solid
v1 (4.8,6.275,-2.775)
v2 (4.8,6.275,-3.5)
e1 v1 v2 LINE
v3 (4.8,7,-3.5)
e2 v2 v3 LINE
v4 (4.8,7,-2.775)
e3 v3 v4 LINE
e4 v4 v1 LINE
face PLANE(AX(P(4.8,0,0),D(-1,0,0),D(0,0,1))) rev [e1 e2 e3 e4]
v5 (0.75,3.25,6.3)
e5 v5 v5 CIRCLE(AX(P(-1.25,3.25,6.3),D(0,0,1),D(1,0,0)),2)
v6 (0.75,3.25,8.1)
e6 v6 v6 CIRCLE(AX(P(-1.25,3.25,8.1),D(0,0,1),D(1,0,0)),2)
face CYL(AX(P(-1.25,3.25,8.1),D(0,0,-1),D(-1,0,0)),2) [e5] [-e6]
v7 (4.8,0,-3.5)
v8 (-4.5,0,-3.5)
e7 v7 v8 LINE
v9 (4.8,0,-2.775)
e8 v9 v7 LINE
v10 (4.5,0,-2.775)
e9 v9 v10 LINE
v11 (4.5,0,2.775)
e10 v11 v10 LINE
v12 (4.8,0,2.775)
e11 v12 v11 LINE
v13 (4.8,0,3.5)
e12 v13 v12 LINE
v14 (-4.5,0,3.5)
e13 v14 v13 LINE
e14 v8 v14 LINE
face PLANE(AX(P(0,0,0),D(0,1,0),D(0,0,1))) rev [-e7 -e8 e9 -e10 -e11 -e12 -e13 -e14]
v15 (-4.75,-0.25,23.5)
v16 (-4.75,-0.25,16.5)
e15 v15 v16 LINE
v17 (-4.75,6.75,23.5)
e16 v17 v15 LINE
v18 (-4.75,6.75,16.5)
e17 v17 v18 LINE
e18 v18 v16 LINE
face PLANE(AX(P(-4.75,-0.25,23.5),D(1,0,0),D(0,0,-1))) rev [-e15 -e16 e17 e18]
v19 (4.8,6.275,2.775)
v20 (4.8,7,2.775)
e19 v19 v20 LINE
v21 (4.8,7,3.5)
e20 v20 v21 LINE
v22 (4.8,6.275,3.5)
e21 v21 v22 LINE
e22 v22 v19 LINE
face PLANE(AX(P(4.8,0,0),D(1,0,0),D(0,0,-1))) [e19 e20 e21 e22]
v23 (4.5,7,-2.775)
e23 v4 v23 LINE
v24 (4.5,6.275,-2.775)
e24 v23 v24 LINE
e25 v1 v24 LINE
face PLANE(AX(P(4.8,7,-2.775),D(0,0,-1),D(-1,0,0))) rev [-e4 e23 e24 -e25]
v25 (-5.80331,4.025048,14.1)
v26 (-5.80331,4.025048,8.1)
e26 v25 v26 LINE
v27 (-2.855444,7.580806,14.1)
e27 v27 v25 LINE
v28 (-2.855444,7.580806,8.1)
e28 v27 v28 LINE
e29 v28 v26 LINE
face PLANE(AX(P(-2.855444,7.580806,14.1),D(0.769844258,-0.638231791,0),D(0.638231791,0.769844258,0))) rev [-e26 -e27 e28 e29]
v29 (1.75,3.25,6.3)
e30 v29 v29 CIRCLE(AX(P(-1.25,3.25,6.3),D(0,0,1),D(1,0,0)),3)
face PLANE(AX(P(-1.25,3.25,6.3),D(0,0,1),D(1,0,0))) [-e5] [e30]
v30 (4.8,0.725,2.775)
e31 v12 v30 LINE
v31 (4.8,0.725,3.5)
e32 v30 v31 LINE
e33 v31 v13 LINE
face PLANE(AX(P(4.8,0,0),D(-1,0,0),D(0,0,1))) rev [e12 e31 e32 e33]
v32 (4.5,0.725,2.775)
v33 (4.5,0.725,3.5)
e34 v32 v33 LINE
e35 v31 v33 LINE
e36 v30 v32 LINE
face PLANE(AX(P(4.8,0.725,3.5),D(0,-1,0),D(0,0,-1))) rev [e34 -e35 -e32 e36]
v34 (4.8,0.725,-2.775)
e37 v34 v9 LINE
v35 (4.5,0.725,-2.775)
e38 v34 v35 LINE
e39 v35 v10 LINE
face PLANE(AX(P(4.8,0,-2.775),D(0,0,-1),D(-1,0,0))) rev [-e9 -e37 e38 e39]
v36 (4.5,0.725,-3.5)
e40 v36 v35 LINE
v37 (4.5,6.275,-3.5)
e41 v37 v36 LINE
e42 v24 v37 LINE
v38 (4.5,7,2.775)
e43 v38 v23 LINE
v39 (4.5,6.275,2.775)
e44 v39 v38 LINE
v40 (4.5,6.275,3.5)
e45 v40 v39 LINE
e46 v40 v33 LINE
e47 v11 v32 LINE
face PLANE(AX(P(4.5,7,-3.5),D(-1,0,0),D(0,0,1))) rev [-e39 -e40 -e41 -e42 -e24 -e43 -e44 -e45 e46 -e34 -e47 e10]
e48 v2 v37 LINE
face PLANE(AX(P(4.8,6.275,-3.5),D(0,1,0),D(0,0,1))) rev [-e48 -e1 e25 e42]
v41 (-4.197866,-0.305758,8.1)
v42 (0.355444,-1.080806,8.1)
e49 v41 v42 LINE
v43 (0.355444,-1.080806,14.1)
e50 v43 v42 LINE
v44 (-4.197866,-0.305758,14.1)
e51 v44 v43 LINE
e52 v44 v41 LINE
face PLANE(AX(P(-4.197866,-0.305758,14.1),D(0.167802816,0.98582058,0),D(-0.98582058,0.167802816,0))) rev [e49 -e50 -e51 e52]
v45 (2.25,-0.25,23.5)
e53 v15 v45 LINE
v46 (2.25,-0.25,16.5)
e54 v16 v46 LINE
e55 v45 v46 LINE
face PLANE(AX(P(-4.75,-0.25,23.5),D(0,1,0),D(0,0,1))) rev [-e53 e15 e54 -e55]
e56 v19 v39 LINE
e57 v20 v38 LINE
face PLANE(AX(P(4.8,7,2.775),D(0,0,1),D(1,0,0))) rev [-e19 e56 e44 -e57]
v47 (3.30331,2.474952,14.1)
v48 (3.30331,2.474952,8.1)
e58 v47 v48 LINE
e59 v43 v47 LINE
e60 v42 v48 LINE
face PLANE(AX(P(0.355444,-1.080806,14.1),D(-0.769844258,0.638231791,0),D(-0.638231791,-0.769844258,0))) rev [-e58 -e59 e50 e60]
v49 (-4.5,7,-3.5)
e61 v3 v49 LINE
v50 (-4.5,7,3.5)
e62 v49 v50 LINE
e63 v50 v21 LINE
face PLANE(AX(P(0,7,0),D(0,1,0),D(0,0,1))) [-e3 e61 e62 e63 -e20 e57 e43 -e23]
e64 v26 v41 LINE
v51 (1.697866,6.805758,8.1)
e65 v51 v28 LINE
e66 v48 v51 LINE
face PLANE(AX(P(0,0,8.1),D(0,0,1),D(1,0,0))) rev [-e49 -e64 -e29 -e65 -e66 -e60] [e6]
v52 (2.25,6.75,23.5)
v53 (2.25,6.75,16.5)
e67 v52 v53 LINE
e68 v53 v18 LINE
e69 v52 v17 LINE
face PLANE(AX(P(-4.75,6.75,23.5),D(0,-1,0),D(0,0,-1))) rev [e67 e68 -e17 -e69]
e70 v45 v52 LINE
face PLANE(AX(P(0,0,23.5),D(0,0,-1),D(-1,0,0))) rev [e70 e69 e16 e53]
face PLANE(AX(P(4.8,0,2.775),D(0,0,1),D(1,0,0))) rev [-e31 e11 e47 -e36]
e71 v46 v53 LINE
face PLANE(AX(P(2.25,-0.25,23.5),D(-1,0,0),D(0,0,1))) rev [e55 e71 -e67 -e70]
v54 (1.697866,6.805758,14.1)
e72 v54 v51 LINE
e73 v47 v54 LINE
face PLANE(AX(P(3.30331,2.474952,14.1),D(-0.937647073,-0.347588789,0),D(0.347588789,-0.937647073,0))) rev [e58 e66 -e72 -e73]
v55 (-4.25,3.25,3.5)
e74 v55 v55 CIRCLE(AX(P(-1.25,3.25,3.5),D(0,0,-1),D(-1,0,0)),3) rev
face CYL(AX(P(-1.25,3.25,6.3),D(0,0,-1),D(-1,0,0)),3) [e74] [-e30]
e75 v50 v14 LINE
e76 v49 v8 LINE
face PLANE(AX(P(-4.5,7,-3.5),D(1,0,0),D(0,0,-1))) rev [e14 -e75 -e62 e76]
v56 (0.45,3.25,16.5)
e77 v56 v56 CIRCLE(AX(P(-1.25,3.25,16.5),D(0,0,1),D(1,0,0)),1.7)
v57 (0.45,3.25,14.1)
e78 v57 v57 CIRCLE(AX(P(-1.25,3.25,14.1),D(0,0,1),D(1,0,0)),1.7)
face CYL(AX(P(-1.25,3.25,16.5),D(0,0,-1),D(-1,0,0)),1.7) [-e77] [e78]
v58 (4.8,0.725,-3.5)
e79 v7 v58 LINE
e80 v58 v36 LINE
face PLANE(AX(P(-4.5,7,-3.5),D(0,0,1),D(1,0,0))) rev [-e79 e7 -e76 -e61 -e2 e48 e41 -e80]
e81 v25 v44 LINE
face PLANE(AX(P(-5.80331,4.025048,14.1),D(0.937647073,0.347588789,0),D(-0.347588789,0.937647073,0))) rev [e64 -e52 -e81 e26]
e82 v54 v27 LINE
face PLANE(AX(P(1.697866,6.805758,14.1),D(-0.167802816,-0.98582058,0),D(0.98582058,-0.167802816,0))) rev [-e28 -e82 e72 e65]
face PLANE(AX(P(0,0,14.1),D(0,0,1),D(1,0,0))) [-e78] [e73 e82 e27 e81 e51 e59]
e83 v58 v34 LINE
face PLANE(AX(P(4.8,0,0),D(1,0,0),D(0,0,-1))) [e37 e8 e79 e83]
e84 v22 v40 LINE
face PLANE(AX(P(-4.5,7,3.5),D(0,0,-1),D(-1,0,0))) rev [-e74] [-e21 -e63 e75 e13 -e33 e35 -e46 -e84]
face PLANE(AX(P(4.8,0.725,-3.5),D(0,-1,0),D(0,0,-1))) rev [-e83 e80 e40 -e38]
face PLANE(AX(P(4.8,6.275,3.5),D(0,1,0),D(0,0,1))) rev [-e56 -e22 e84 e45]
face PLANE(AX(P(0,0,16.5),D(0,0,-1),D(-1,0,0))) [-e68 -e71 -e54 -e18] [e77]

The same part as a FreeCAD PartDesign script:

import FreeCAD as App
import Part
import Sketcher
from FreeCAD import Vector

doc = App.newDocument("Part")
params = doc.addObject("Spreadsheet::Sheet", "Params")
for row, (alias, value) in enumerate([
    ("sketch1_width", "9 mm"),
    ("sketch1_height", "7 mm"),
    ("pad1_length", "7 mm"),
    ("pad2_length", "0.3 mm"),
    ("sketch3_diameter", "6 mm"),
    ("pad3_length", "2.8 mm"),
    ("sketch4_diameter", "4 mm"),
    ("pad4_length", "1.8 mm"),
    ("pad5_length", "6 mm"),
    ("sketch6_diameter", "3.4 mm"),
    ("pad6_length", "2.4 mm"),
    ("sketch7_width", "7 mm"),
    ("pad7_length", "7 mm"),
], start=1):
    params.set(f"A{row}", alias)
    params.set(f"B{row}", "=" + value)
    params.setAlias(f"B{row}", alias)

body = doc.addObject("PartDesign::Body", "Body")

# Sketch on XZ plane
sketch1 = body.newObject("Sketcher::SketchObject", "Sketch")
sketch1.AttachmentSupport = (doc.getObject("XZ_Plane"), [""])
sketch1.MapMode = "FlatFace"
sketch1.addGeometry(Part.LineSegment(Vector(-4.5, -3.5, 0), Vector(-4.5, 3.5, 0)), False)
sketch1.addGeometry(Part.LineSegment(Vector(-4.5, 3.5, 0), Vector(4.5, 3.5, 0)), False)
sketch1.addGeometry(Part.LineSegment(Vector(4.5, 3.5, 0), Vector(4.5, -3.5, 0)), False)
sketch1.addGeometry(Part.LineSegment(Vector(4.5, -3.5, 0), Vector(-4.5, -3.5, 0)), False)
sketch1.addConstraint(Sketcher.Constraint("Coincident", 0, 2, 1, 1))
sketch1.addConstraint(Sketcher.Constraint("Coincident", 1, 2, 2, 1))
sketch1.addConstraint(Sketcher.Constraint("Coincident", 2, 2, 3, 1))
sketch1.addConstraint(Sketcher.Constraint("Coincident", 3, 2, 0, 1))
sketch1.addConstraint(Sketcher.Constraint("Vertical", 0))
sketch1.addConstraint(Sketcher.Constraint("Horizontal", 1))
sketch1.addConstraint(Sketcher.Constraint("Vertical", 2))
sketch1.addConstraint(Sketcher.Constraint("Horizontal", 3))
sketch1.addConstraint(Sketcher.Constraint("Symmetric", 0, 2, 2, 2, -1, 1))
sketch1.addConstraint(Sketcher.Constraint("DistanceX", 1, 1, 1, 2, 9.0))
sketch1.addConstraint(Sketcher.Constraint("DistanceY", 0, 1, 0, 2, 7.0))
sketch1.setExpression("Constraints[9]", "Params.sketch1_width")
sketch1.setExpression("Constraints[10]", "Params.sketch1_height")
pad1 = body.newObject("PartDesign::Pad", "Pad")
pad1.Profile = sketch1
pad1.setExpression("Length", "Params.pad1_length")
pad1.Reversed = True

# Sketch on YZ plane
sketch2 = body.newObject("Sketcher::SketchObject", "Sketch001")
sketch2.AttachmentSupport = (doc.getObject("YZ_Plane"), [""])
sketch2.MapMode = "FlatFace"
sketch2.AttachmentOffset = App.Placement(Vector(0, 0, 4.5), App.Rotation())
sketch2.addGeometry(Part.LineSegment(Vector(7, 3.5, 0), Vector(6.275, 3.5, 0)), False)
sketch2.addGeometry(Part.LineSegment(Vector(6.275, 3.5, 0), Vector(6.275, 2.775, 0)), False)
sketch2.addGeometry(Part.LineSegment(Vector(6.275, 2.775, 0), Vector(7, 2.775, 0)), False)
sketch2.addGeometry(Part.LineSegment(Vector(7, 2.775, 0), Vector(7, 3.5, 0)), False)
sketch2.addGeometry(Part.LineSegment(Vector(7, -2.775, 0), Vector(6.275, -2.775, 0)), False)
sketch2.addGeometry(Part.LineSegment(Vector(6.275, -2.775, 0), Vector(6.275, -3.5, 0)), False)
sketch2.addGeometry(Part.LineSegment(Vector(6.275, -3.5, 0), Vector(7, -3.5, 0)), False)
sketch2.addGeometry(Part.LineSegment(Vector(7, -3.5, 0), Vector(7, -2.775, 0)), False)
sketch2.addGeometry(Part.LineSegment(Vector(0.725, 3.5, 0), Vector(0, 3.5, 0)), False)
sketch2.addGeometry(Part.LineSegment(Vector(0, 3.5, 0), Vector(0, 2.775, 0)), False)
sketch2.addGeometry(Part.LineSegment(Vector(0, 2.775, 0), Vector(0.725, 2.775, 0)), False)
sketch2.addGeometry(Part.LineSegment(Vector(0.725, 2.775, 0), Vector(0.725, 3.5, 0)), False)
sketch2.addGeometry(Part.LineSegment(Vector(0.725, -2.775, 0), Vector(0, -2.775, 0)), False)
sketch2.addGeometry(Part.LineSegment(Vector(0, -2.775, 0), Vector(0, -3.5, 0)), False)
sketch2.addGeometry(Part.LineSegment(Vector(0, -3.5, 0), Vector(0.725, -3.5, 0)), False)
sketch2.addGeometry(Part.LineSegment(Vector(0.725, -3.5, 0), Vector(0.725, -2.775, 0)), False)
sketch2.addConstraint(Sketcher.Constraint("Coincident", 0, 2, 1, 1))
sketch2.addConstraint(Sketcher.Constraint("Coincident", 1, 2, 2, 1))
sketch2.addConstraint(Sketcher.Constraint("Coincident", 2, 2, 3, 1))
sketch2.addConstraint(Sketcher.Constraint("Coincident", 3, 2, 0, 1))
sketch2.addConstraint(Sketcher.Constraint("Coincident", 4, 2, 5, 1))
sketch2.addConstraint(Sketcher.Constraint("Coincident", 5, 2, 6, 1))
sketch2.addConstraint(Sketcher.Constraint("Coincident", 6, 2, 7, 1))
sketch2.addConstraint(Sketcher.Constraint("Coincident", 7, 2, 4, 1))
sketch2.addConstraint(Sketcher.Constraint("Coincident", 8, 2, 9, 1))
sketch2.addConstraint(Sketcher.Constraint("Coincident", 9, 2, 10, 1))
sketch2.addConstraint(Sketcher.Constraint("Coincident", 10, 2, 11, 1))
sketch2.addConstraint(Sketcher.Constraint("Coincident", 11, 2, 8, 1))
sketch2.addConstraint(Sketcher.Constraint("Coincident", 12, 2, 13, 1))
sketch2.addConstraint(Sketcher.Constraint("Coincident", 13, 2, 14, 1))
sketch2.addConstraint(Sketcher.Constraint("Coincident", 14, 2, 15, 1))
sketch2.addConstraint(Sketcher.Constraint("Coincident", 15, 2, 12, 1))
sketch2.addConstraint(Sketcher.Constraint("Horizontal", 0))
sketch2.addConstraint(Sketcher.Constraint("Vertical", 1))
sketch2.addConstraint(Sketcher.Constraint("Horizontal", 2))
sketch2.addConstraint(Sketcher.Constraint("Vertical", 3))
sketch2.addConstraint(Sketcher.Constraint("Horizontal", 4))
sketch2.addConstraint(Sketcher.Constraint("Vertical", 5))
sketch2.addConstraint(Sketcher.Constraint("Horizontal", 6))
sketch2.addConstraint(Sketcher.Constraint("Vertical", 7))
sketch2.addConstraint(Sketcher.Constraint("Horizontal", 8))
sketch2.addConstraint(Sketcher.Constraint("Vertical", 9))
sketch2.addConstraint(Sketcher.Constraint("Horizontal", 10))
sketch2.addConstraint(Sketcher.Constraint("Vertical", 11))
sketch2.addConstraint(Sketcher.Constraint("Horizontal", 12))
sketch2.addConstraint(Sketcher.Constraint("Vertical", 13))
sketch2.addConstraint(Sketcher.Constraint("Horizontal", 14))
sketch2.addConstraint(Sketcher.Constraint("Vertical", 15))
sketch2.addConstraint(Sketcher.Constraint("Symmetric", 9, 2, 12, 2, -1, 1))
sketch2.addConstraint(Sketcher.Constraint("Symmetric", 1, 2, 4, 2, -1))
sketch2.addConstraint(Sketcher.Constraint("Symmetric", 3, 2, 6, 2, -1))
sketch2.addConstraint(Sketcher.Constraint("Symmetric", 8, 2, 13, 2, -1))
sketch2.addConstraint(Sketcher.Constraint("Horizontal", 3, 2, 8, 2))
sketch2.addConstraint(Sketcher.Constraint("Horizontal", 2, 2, 9, 2))
sketch2.addConstraint(Sketcher.Constraint("Vertical", 11, 2, 14, 2))
sketch2.addConstraint(Sketcher.Constraint("Equal", 6, 8))
sketch2.addConstraint(Sketcher.Constraint("Equal", 14, 1))
sketch2.addConstraint(Sketcher.Constraint("DistanceX", -1, 1, 2, 2, 7.0))
sketch2.addConstraint(Sketcher.Constraint("DistanceY", 5, 2, 0, 2, 7.0))
sketch2.addConstraint(Sketcher.Constraint("DistanceX", 0, 2, 0, 1, 0.725))
pad2 = body.newObject("PartDesign::Pad", "Pad001")
pad2.Profile = sketch2
pad2.setExpression("Length", "Params.pad2_length")

# Sketch on XY plane
sketch3 = body.newObject("Sketcher::SketchObject", "Sketch002")
sketch3.AttachmentSupport = (doc.getObject("XY_Plane"), [""])
sketch3.MapMode = "FlatFace"
sketch3.AttachmentOffset = App.Placement(Vector(0, 0, 3.5), App.Rotation())
sketch3.addGeometry(Part.Circle(Vector(-1.25, 3.25, 0), Vector(0, 0, 1), 3), False)
sketch3.addConstraint(Sketcher.Constraint("Diameter", 0, 6.0))
sketch3.addConstraint(Sketcher.Constraint("DistanceX", 0, 3, -1, 1, 1.25))
sketch3.addConstraint(Sketcher.Constraint("DistanceY", -1, 1, 0, 3, 3.25))
sketch3.setExpression("Constraints[0]", "Params.sketch3_diameter")
pad3 = body.newObject("PartDesign::Pad", "Pad002")
pad3.Profile = sketch3
pad3.setExpression("Length", "Params.pad3_length")

# Sketch on XY plane
sketch4 = body.newObject("Sketcher::SketchObject", "Sketch003")
sketch4.AttachmentSupport = (doc.getObject("XY_Plane"), [""])
sketch4.MapMode = "FlatFace"
sketch4.AttachmentOffset = App.Placement(Vector(0, 0, 6.3), App.Rotation())
sketch4.addGeometry(Part.Circle(Vector(-1.25, 3.25, 0), Vector(0, 0, 1), 2), False)
sketch4.addConstraint(Sketcher.Constraint("Diameter", 0, 4.0))
sketch4.addConstraint(Sketcher.Constraint("DistanceX", 0, 3, -1, 1, 1.25))
sketch4.addConstraint(Sketcher.Constraint("DistanceY", -1, 1, 0, 3, 3.25))
sketch4.setExpression("Constraints[0]", "Params.sketch4_diameter")
pad4 = body.newObject("PartDesign::Pad", "Pad003")
pad4.Profile = sketch4
pad4.setExpression("Length", "Params.pad4_length")

# Sketch on XY plane
sketch5 = body.newObject("Sketcher::SketchObject", "Sketch004")
sketch5.AttachmentSupport = (doc.getObject("XY_Plane"), [""])
sketch5.MapMode = "FlatFace"
sketch5.AttachmentOffset = App.Placement(Vector(0, 0, 8.1), App.Rotation())
sketch5.addGeometry(Part.LineSegment(Vector(1.697866, 6.805758, 0), Vector(-2.855444, 7.580806, 0)), False)
sketch5.addGeometry(Part.LineSegment(Vector(-2.855444, 7.580806, 0), Vector(-5.80331, 4.025048, 0)), False)
sketch5.addGeometry(Part.LineSegment(Vector(-5.80331, 4.025048, 0), Vector(-4.197866, -0.305758, 0)), False)
sketch5.addGeometry(Part.LineSegment(Vector(-4.197866, -0.305758, 0), Vector(0.355444, -1.080806, 0)), False)
sketch5.addGeometry(Part.LineSegment(Vector(0.355444, -1.080806, 0), Vector(3.30331, 2.474952, 0)), False)
sketch5.addGeometry(Part.LineSegment(Vector(3.30331, 2.474952, 0), Vector(1.697866, 6.805758, 0)), False)
sketch5.addConstraint(Sketcher.Constraint("Coincident", 0, 2, 1, 1))
sketch5.addConstraint(Sketcher.Constraint("Coincident", 1, 2, 2, 1))
sketch5.addConstraint(Sketcher.Constraint("Coincident", 2, 2, 3, 1))
sketch5.addConstraint(Sketcher.Constraint("Coincident", 3, 2, 4, 1))
sketch5.addConstraint(Sketcher.Constraint("Coincident", 4, 2, 5, 1))
sketch5.addConstraint(Sketcher.Constraint("Coincident", 5, 2, 0, 1))
sketch5.addConstraint(Sketcher.Constraint("Parallel", 0, 3))
sketch5.addConstraint(Sketcher.Constraint("Parallel", 1, 4))
sketch5.addConstraint(Sketcher.Constraint("Parallel", 2, 5))
sketch5.addConstraint(Sketcher.Constraint("Equal", 0, 1))
sketch5.addConstraint(Sketcher.Constraint("Equal", 1, 2))
sketch5.addConstraint(Sketcher.Constraint("Equal", 2, 3))
sketch5.addConstraint(Sketcher.Constraint("DistanceX", 1, 2, -1, 1, 5.80331))
sketch5.addConstraint(Sketcher.Constraint("DistanceY", -1, 1, 1, 2, 4.025048))
sketch5.addConstraint(Sketcher.Constraint("DistanceY", 2, 2, -1, 1, 0.305758))
sketch5.addConstraint(Sketcher.Constraint("DistanceX", -1, 1, 4, 2, 3.30331))
sketch5.addConstraint(Sketcher.Constraint("DistanceY", -1, 1, 4, 2, 2.474952))
sketch5.addConstraint(Sketcher.Constraint("DistanceY", 1, 2, 0, 2, 3.555758))
pad5 = body.newObject("PartDesign::Pad", "Pad004")
pad5.Profile = sketch5
pad5.setExpression("Length", "Params.pad5_length")

# Sketch on XY plane
sketch6 = body.newObject("Sketcher::SketchObject", "Sketch005")
sketch6.AttachmentSupport = (doc.getObject("XY_Plane"), [""])
sketch6.MapMode = "FlatFace"
sketch6.AttachmentOffset = App.Placement(Vector(0, 0, 14.1), App.Rotation())
sketch6.addGeometry(Part.Circle(Vector(-1.25, 3.25, 0), Vector(0, 0, 1), 1.7), False)
sketch6.addConstraint(Sketcher.Constraint("Diameter", 0, 3.4))
sketch6.addConstraint(Sketcher.Constraint("DistanceX", 0, 3, -1, 1, 1.25))
sketch6.addConstraint(Sketcher.Constraint("DistanceY", -1, 1, 0, 3, 3.25))
sketch6.setExpression("Constraints[0]", "Params.sketch6_diameter")
pad6 = body.newObject("PartDesign::Pad", "Pad005")
pad6.Profile = sketch6
pad6.setExpression("Length", "Params.pad6_length")

# Sketch on XY plane
sketch7 = body.newObject("Sketcher::SketchObject", "Sketch006")
sketch7.AttachmentSupport = (doc.getObject("XY_Plane"), [""])
sketch7.MapMode = "FlatFace"
sketch7.AttachmentOffset = App.Placement(Vector(0, 0, 16.5), App.Rotation())
sketch7.addGeometry(Part.LineSegment(Vector(-4.75, 6.75, 0), Vector(-4.75, -0.25, 0)), False)
sketch7.addGeometry(Part.LineSegment(Vector(-4.75, -0.25, 0), Vector(2.25, -0.25, 0)), False)
sketch7.addGeometry(Part.LineSegment(Vector(2.25, -0.25, 0), Vector(2.25, 6.75, 0)), False)
sketch7.addGeometry(Part.LineSegment(Vector(2.25, 6.75, 0), Vector(-4.75, 6.75, 0)), False)
sketch7.addConstraint(Sketcher.Constraint("Coincident", 0, 2, 1, 1))
sketch7.addConstraint(Sketcher.Constraint("Coincident", 1, 2, 2, 1))
sketch7.addConstraint(Sketcher.Constraint("Coincident", 2, 2, 3, 1))
sketch7.addConstraint(Sketcher.Constraint("Coincident", 3, 2, 0, 1))
sketch7.addConstraint(Sketcher.Constraint("Vertical", 0))
sketch7.addConstraint(Sketcher.Constraint("Horizontal", 1))
sketch7.addConstraint(Sketcher.Constraint("Vertical", 2))
sketch7.addConstraint(Sketcher.Constraint("Horizontal", 3))
sketch7.addConstraint(Sketcher.Constraint("Equal", 3, 0))
sketch7.addConstraint(Sketcher.Constraint("DistanceX", 1, 1, 1, 2, 7.0))
sketch7.addConstraint(Sketcher.Constraint("DistanceX", 0, 2, -1, 1, 4.75))
sketch7.addConstraint(Sketcher.Constraint("DistanceY", 0, 2, -1, 1, 0.25))
sketch7.setExpression("Constraints[9]", "Params.sketch7_width")
pad7 = body.newObject("PartDesign::Pad", "Pad006")
pad7.Profile = sketch7
pad7.setExpression("Length", "Params.pad7_length")

doc.recompute()
